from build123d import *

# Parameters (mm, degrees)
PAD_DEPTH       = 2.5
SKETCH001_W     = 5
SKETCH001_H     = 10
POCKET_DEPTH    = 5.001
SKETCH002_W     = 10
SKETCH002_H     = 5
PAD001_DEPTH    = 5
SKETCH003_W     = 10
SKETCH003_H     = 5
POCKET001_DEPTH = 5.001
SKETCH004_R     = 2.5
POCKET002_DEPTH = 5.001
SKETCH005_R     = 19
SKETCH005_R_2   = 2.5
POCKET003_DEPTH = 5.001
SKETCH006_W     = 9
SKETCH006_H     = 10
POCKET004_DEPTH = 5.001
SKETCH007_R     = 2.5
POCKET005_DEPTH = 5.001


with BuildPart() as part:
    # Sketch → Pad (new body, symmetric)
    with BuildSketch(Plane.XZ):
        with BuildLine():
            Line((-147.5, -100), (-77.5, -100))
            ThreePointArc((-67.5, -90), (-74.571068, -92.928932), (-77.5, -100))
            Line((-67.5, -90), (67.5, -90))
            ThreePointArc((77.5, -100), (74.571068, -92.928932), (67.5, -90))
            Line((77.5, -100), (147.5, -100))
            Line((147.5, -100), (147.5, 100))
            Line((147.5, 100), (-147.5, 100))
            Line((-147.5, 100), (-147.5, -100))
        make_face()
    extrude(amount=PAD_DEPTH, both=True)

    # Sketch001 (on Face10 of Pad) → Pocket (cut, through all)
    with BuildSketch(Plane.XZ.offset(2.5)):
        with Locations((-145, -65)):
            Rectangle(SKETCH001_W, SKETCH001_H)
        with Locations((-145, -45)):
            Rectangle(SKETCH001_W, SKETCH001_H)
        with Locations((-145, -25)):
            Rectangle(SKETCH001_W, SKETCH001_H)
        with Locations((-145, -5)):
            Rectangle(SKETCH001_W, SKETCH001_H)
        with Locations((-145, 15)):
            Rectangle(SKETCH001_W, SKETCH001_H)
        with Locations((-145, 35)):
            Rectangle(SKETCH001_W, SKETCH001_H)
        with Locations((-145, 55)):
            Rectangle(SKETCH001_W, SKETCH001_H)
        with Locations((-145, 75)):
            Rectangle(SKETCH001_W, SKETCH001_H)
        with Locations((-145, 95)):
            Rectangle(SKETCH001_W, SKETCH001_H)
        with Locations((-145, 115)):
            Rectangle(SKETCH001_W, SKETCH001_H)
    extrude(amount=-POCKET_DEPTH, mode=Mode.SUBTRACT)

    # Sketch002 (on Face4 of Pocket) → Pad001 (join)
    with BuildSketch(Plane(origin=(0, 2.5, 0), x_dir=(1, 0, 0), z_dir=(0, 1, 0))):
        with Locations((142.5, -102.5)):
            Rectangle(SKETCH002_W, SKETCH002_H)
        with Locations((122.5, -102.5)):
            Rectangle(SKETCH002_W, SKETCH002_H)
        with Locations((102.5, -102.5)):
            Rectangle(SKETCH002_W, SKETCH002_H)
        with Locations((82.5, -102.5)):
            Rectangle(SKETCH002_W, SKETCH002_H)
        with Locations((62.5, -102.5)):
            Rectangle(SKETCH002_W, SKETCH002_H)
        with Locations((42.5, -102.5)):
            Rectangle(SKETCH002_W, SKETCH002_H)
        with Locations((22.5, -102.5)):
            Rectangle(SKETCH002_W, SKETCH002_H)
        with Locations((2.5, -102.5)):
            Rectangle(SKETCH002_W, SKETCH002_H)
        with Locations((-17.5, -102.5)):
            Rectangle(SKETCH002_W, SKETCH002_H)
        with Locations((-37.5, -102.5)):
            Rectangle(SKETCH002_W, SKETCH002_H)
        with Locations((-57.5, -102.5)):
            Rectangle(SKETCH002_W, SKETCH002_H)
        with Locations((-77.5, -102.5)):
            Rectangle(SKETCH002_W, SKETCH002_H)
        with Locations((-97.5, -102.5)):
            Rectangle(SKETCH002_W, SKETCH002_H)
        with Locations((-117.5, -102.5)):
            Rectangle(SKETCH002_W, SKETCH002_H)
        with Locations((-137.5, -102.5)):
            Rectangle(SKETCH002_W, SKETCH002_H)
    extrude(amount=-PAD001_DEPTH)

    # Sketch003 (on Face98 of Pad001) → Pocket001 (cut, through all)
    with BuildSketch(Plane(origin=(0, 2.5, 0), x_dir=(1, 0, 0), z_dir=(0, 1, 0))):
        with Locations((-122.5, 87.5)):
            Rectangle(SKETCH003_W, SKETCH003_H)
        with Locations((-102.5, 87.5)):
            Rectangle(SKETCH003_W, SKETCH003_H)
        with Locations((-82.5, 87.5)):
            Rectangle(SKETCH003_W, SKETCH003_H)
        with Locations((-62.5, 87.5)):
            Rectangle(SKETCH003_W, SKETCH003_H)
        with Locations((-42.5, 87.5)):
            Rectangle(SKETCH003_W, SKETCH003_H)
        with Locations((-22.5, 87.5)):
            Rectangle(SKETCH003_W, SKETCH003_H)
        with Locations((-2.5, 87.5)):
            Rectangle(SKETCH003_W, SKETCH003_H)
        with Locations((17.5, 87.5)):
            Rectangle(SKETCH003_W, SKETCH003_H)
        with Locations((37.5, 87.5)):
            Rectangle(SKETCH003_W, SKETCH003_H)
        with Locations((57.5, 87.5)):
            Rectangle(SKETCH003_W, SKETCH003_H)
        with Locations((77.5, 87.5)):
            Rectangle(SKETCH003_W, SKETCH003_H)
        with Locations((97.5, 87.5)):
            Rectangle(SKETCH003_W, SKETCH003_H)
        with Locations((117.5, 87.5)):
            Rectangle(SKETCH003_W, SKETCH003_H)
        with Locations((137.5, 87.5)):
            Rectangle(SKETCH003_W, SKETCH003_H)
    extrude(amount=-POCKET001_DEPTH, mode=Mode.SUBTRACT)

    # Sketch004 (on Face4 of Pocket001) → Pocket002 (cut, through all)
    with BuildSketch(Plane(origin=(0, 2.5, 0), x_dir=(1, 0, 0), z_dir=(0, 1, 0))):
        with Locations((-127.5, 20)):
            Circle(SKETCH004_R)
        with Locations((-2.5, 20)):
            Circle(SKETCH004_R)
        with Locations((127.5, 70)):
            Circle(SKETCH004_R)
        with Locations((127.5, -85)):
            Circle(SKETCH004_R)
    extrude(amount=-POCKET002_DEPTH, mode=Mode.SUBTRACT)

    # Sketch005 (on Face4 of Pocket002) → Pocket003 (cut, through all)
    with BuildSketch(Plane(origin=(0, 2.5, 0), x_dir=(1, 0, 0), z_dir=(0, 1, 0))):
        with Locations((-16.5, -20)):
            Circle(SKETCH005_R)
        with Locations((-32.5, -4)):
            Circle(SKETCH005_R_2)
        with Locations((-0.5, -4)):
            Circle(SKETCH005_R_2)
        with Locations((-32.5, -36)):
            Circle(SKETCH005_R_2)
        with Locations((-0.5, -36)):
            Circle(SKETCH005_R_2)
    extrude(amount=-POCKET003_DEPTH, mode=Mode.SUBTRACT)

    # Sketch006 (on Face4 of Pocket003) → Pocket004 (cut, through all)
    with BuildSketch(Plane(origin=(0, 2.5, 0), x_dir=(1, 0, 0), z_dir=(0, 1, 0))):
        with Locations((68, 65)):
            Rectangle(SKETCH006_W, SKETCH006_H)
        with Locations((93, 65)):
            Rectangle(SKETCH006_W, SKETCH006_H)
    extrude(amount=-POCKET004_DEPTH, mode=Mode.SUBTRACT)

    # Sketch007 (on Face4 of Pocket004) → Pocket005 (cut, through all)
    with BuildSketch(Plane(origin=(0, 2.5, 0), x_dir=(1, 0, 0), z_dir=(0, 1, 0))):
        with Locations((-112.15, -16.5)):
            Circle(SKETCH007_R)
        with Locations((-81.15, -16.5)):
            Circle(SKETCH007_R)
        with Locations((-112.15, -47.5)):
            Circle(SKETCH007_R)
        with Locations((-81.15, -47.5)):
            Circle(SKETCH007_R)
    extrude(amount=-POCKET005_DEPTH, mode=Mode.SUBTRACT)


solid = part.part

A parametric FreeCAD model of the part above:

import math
import FreeCAD as App
import Part
import Sketcher
from FreeCAD import Vector

doc = App.newDocument("Part")
body = doc.addObject("PartDesign::Body", "Body")

# Sketch on XZ plane
sketch1 = doc.addObject("Sketcher::SketchObject", "Sketch")
body.addObject(sketch1)
sketch1.AttachmentSupport = (doc.XZ_Plane, [""])
sketch1.MapMode = "FlatFace"
sketch1.addGeometry([
    Part.LineSegment(Vector(-148, -100, 0), Vector(-78, -100, 0)),  # 0
    Part.ArcOfCircle(Part.Circle(Vector(-68, -100, 0), Vector(0, 0, 1), 10), math.radians(90), math.radians(180)),  # 1
    Part.LineSegment(Vector(-68, -90, 0), Vector(68, -90, 0)),  # 2
    Part.ArcOfCircle(Part.Circle(Vector(68, -100, 0), Vector(0, 0, 1), 10), math.radians(0), math.radians(90)),  # 3
    Part.LineSegment(Vector(78, -100, 0), Vector(148, -100, 0)),  # 4
    Part.LineSegment(Vector(148, -100, 0), Vector(148, 100, 0)),  # 5
    Part.LineSegment(Vector(148, 100, 0), Vector(-148, 100, 0)),  # 6
    Part.LineSegment(Vector(-148, 100, 0), Vector(-148, -100, 0)),  # 7
], False)
sketch1.addConstraint([
    Sketcher.Constraint("Coincident", 0, 2, 1, 2),
    Sketcher.Constraint("Tangent", 1, 1, 2, 1),
    Sketcher.Constraint("Tangent", 2, 2, 3, 2),
    Sketcher.Constraint("Coincident", 3, 1, 4, 1),
    Sketcher.Constraint("Coincident", 4, 2, 5, 1),
    Sketcher.Constraint("Coincident", 5, 2, 6, 1),
    Sketcher.Constraint("Coincident", 6, 2, 7, 1),
    Sketcher.Constraint("Coincident", 7, 2, 0, 1),
    Sketcher.Constraint("Horizontal", 0),
    Sketcher.Constraint("Horizontal", 2),
    Sketcher.Constraint("Horizontal", 4),
    Sketcher.Constraint("Vertical", 5),
    Sketcher.Constraint("Horizontal", 6),
    Sketcher.Constraint("Vertical", 7),
    Sketcher.Constraint("Equal", 1, 3),
    Sketcher.Constraint("Symmetric", 4, 2, 6, 2, -1, 1),
    Sketcher.Constraint("Symmetric", 0, 2, 3, 1, -2),
    Sketcher.Constraint("Horizontal", 3, 3, 0, 2),
    Sketcher.Constraint("Radius", 1, 9.999999),
    Sketcher.Constraint("DistanceX", 0, 1, 0, 2, 70.0),
    Sketcher.Constraint("DistanceX", 2, 1, 2, 2, 135.0),
    Sketcher.Constraint("DistanceY", 5, 1, 5, 2, 200.0),
])
pad1 = doc.addObject("PartDesign::Pad", "Pad")
body.addObject(pad1)
pad1.Profile = sketch1
pad1.Length = 5
pad1.Midplane = True

# Sketch on XZ plane
sketch2 = doc.addObject("Sketcher::SketchObject", "Sketch001")
body.addObject(sketch2)
sketch2.AttachmentSupport = (doc.XZ_Plane, [""])
sketch2.MapMode = "FlatFace"
sketch2.AttachmentOffset = App.Placement(Vector(0, 0, 2.5), App.Rotation())
sketch2.addGeometry([
    Part.LineSegment(Vector(-148, -60, 0), Vector(-148, -70, 0)),  # 0
    Part.LineSegment(Vector(-148, -70, 0), Vector(-142, -70, 0)),  # 1
    Part.LineSegment(Vector(-142, -70, 0), Vector(-142, -60, 0)),  # 2
    Part.LineSegment(Vector(-142, -60, 0), Vector(-148, -60, 0)),  # 3
    Part.LineSegment(Vector(-148, -40, 0), Vector(-148, -50, 0)),  # 4
    Part.LineSegment(Vector(-148, -50, 0), Vector(-142, -50, 0)),  # 5
    Part.LineSegment(Vector(-142, -50, 0), Vector(-142, -40, 0)),  # 6
    Part.LineSegment(Vector(-142, -40, 0), Vector(-148, -40, 0)),  # 7
    Part.LineSegment(Vector(-148, -20, 0), Vector(-148, -30, 0)),  # 8
    Part.LineSegment(Vector(-148, -30, 0), Vector(-142, -30, 0)),  # 9
    Part.LineSegment(Vector(-142, -30, 0), Vector(-142, -20, 0)),  # 10
    Part.LineSegment(Vector(-142, -20, 0), Vector(-148, -20, 0)),  # 11
    Part.LineSegment(Vector(-148, 0, 0), Vector(-148, -10, 0)),  # 12
    Part.LineSegment(Vector(-148, -10, 0), Vector(-142, -10, 0)),  # 13
    Part.LineSegment(Vector(-142, -10, 0), Vector(-142, 0, 0)),  # 14
    Part.LineSegment(Vector(-142, 0, 0), Vector(-148, 0, 0)),  # 15
    Part.LineSegment(Vector(-148, 20, 0), Vector(-148, 10, 0)),  # 16
    Part.LineSegment(Vector(-148, 10, 0), Vector(-142, 10, 0)),  # 17
    Part.LineSegment(Vector(-142, 10, 0), Vector(-142, 20, 0)),  # 18
    Part.LineSegment(Vector(-142, 20, 0), Vector(-148, 20, 0)),  # 19
    Part.LineSegment(Vector(-148, 40, 0), Vector(-148, 30, 0)),  # 20
    Part.LineSegment(Vector(-148, 30, 0), Vector(-142, 30, 0)),  # 21
    Part.LineSegment(Vector(-142, 30, 0), Vector(-142, 40, 0)),  # 22
    Part.LineSegment(Vector(-142, 40, 0), Vector(-148, 40, 0)),  # 23
    Part.LineSegment(Vector(-148, 60, 0), Vector(-148, 50, 0)),  # 24
    Part.LineSegment(Vector(-148, 50, 0), Vector(-142, 50, 0)),  # 25
    Part.LineSegment(Vector(-142, 50, 0), Vector(-142, 60, 0)),  # 26
    Part.LineSegment(Vector(-142, 60, 0), Vector(-148, 60, 0)),  # 27
    Part.LineSegment(Vector(-148, 80, 0), Vector(-148, 70, 0)),  # 28
    Part.LineSegment(Vector(-148, 70, 0), Vector(-142, 70, 0)),  # 29
    Part.LineSegment(Vector(-142, 70, 0), Vector(-142, 80, 0)),  # 30
    Part.LineSegment(Vector(-142, 80, 0), Vector(-148, 80, 0)),  # 31
    Part.LineSegment(Vector(-148, 100, 0), Vector(-148, 90, 0)),  # 32
    Part.LineSegment(Vector(-148, 90, 0), Vector(-142, 90, 0)),  # 33
    Part.LineSegment(Vector(-142, 90, 0), Vector(-142, 100, 0)),  # 34
    Part.LineSegment(Vector(-142, 100, 0), Vector(-148, 100, 0)),  # 35
    Part.LineSegment(Vector(-148, 120, 0), Vector(-148, 110, 0)),  # 36
    Part.LineSegment(Vector(-148, 110, 0), Vector(-142, 110, 0)),  # 37
    Part.LineSegment(Vector(-142, 110, 0), Vector(-142, 120, 0)),  # 38
    Part.LineSegment(Vector(-142, 120, 0), Vector(-148, 120, 0)),  # 39
], False)
sketch2.addConstraint([
    Sketcher.Constraint("Coincident", 0, 2, 1, 1),
    Sketcher.Constraint("Coincident", 1, 2, 2, 1),
    Sketcher.Constraint("Coincident", 2, 2, 3, 1),
    Sketcher.Constraint("Coincident", 3, 2, 0, 1),
    Sketcher.Constraint("Coincident", 4, 2, 5, 1),
    Sketcher.Constraint("Coincident", 5, 2, 6, 1),
    Sketcher.Constraint("Coincident", 6, 2, 7, 1),
    Sketcher.Constraint("Coincident", 7, 2, 4, 1),
    Sketcher.Constraint("Coincident", 8, 2, 9, 1),
    Sketcher.Constraint("Coincident", 9, 2, 10, 1),
    Sketcher.Constraint("Coincident", 10, 2, 11, 1),
    Sketcher.Constraint("Coincident", 11, 2, 8, 1),
    Sketcher.Constraint("Coincident", 12, 2, 13, 1),
    Sketcher.Constraint("Coincident", 13, 2, 14, 1),
    Sketcher.Constraint("Coincident", 14, 2, 15, 1),
    Sketcher.Constraint("Coincident", 15, 2, 12, 1),
    Sketcher.Constraint("Coincident", 16, 2, 17, 1),
    Sketcher.Constraint("Coincident", 17, 2, 18, 1),
    Sketcher.Constraint("Coincident", 18, 2, 19, 1),
    Sketcher.Constraint("Coincident", 19, 2, 16, 1),
    Sketcher.Constraint("Coincident", 20, 2, 21, 1),
    Sketcher.Constraint("Coincident", 21, 2, 22, 1),
    Sketcher.Constraint("Coincident", 22, 2, 23, 1),
    Sketcher.Constraint("Coincident", 23, 2, 20, 1),
    Sketcher.Constraint("Coincident", 24, 2, 25, 1),
    Sketcher.Constraint("Coincident", 25, 2, 26, 1),
    Sketcher.Constraint("Coincident", 26, 2, 27, 1),
    Sketcher.Constraint("Coincident", 27, 2, 24, 1),
    Sketcher.Constraint("Coincident", 28, 2, 29, 1),
    Sketcher.Constraint("Coincident", 29, 2, 30, 1),
    Sketcher.Constraint("Coincident", 30, 2, 31, 1),
    Sketcher.Constraint("Coincident", 31, 2, 28, 1),
    Sketcher.Constraint("Coincident", 32, 2, 33, 1),
    Sketcher.Constraint("Coincident", 33, 2, 34, 1),
    Sketcher.Constraint("Coincident", 34, 2, 35, 1),
    Sketcher.Constraint("Coincident", 35, 2, 32, 1),
    Sketcher.Constraint("Coincident", 36, 2, 37, 1),
    Sketcher.Constraint("Coincident", 37, 2, 38, 1),
    Sketcher.Constraint("Coincident", 38, 2, 39, 1),
    Sketcher.Constraint("Coincident", 39, 2, 36, 1),
    Sketcher.Constraint("Vertical", 0),
    Sketcher.Constraint("Horizontal", 1),
    Sketcher.Constraint("Vertical", 2),
    Sketcher.Constraint("Horizontal", 3),
    Sketcher.Constraint("Vertical", 4),
    Sketcher.Constraint("Horizontal", 5),
    Sketcher.Constraint("Vertical", 6),
    Sketcher.Constraint("Horizontal", 7),
    Sketcher.Constraint("Vertical", 8),
    Sketcher.Constraint("Horizontal", 9),
    Sketcher.Constraint("Vertical", 10),
    Sketcher.Constraint("Horizontal", 11),
    Sketcher.Constraint("Vertical", 12),
    Sketcher.Constraint("Horizontal", 13),
    Sketcher.Constraint("Vertical", 14),
    Sketcher.Constraint("Horizontal", 15),
    Sketcher.Constraint("Vertical", 16),
    Sketcher.Constraint("Horizontal", 17),
    Sketcher.Constraint("Vertical", 18),
    Sketcher.Constraint("Horizontal", 19),
    Sketcher.Constraint("Vertical", 20),
    Sketcher.Constraint("Horizontal", 21),
    Sketcher.Constraint("Vertical", 22),
    Sketcher.Constraint("Horizontal", 23),
    Sketcher.Constraint("Vertical", 24),
    Sketcher.Constraint("Horizontal", 25),
    Sketcher.Constraint("Vertical", 26),
    Sketcher.Constraint("Horizontal", 27),
    Sketcher.Constraint("Vertical", 28),
    Sketcher.Constraint("Horizontal", 29),
    Sketcher.Constraint("Vertical", 30),
    Sketcher.Constraint("Horizontal", 31),
    Sketcher.Constraint("Vertical", 32),
    Sketcher.Constraint("Horizontal", 33),
    Sketcher.Constraint("Vertical", 34),
    Sketcher.Constraint("Horizontal", 35),
    Sketcher.Constraint("Vertical", 36),
    Sketcher.Constraint("Horizontal", 37),
    Sketcher.Constraint("Vertical", 38),
    Sketcher.Constraint("Horizontal", 39),
    Sketcher.Constraint("Symmetric", 12, 2, 16, 2, -1),
    Sketcher.Constraint("Symmetric", 10, 2, 18, 2, -1),
    Sketcher.Constraint("Symmetric", 8, 2, 20, 2, -1),
    Sketcher.Constraint("Symmetric", 6, 2, 22, 2, -1),
    Sketcher.Constraint("Symmetric", 4, 2, 24, 2, -1),
    Sketcher.Constraint("Symmetric", 2, 2, 26, 2, -1),
    Sketcher.Constraint("Symmetric", 0, 2, 28, 2, -1),
    Sketcher.Constraint("PointOnObject", 14, 2, -1),
    Sketcher.Constraint("Vertical", 3, 2, 4, 2),
    Sketcher.Constraint("Vertical", 2, 2, 5, 2),
    Sketcher.Constraint("Vertical", 7, 2, 8, 2),
    Sketcher.Constraint("Vertical", 6, 2, 9, 2),
    Sketcher.Constraint("Vertical", 11, 2, 12, 2),
    Sketcher.Constraint("Vertical", 10, 2, 13, 2),
    Sketcher.Constraint("Vertical", 26, 2, 29, 2),
    Sketcher.Constraint("Vertical", 31, 2, 32, 2),
    Sketcher.Constraint("Vertical", 30, 2, 33, 2),
    Sketcher.Constraint("Vertical", 35, 2, 36, 2),
    Sketcher.Constraint("Vertical", 34, 2, 37, 2),
    Sketcher.Constraint("Equal", 2, 4),
    Sketcher.Constraint("Equal", 6, 8),
    Sketcher.Constraint("Equal", 10, 12),
    Sketcher.Constraint("Equal", 14, 16),
    Sketcher.Constraint("Equal", 18, 20),
    Sketcher.Constraint("Equal", 22, 24),
    Sketcher.Constraint("Equal", 26, 28),
    Sketcher.Constraint("Equal", 30, 32),
    Sketcher.Constraint("Equal", 34, 36),
    Sketcher.Constraint("DistanceX", 1, 1, 1, 2, 5.0),
    Sketcher.Constraint("DistanceY", 0, 2, 0, 1, 10.0),
    Sketcher.Constraint("DistanceY", -1, 1, 32, 2, 90.0),
    Sketcher.Constraint("DistanceY", -1, 1, 36, 2, 110.0),
    Sketcher.Constraint("DistanceX", 0, 2, -1, 1, 147.5),
])
pocket1 = doc.addObject("PartDesign::Pocket", "Pocket")
body.addObject(pocket1)
pocket1.Profile = sketch2
pocket1.Type = "ThroughAll"

# Sketch on XZ plane
sketch3 = doc.addObject("Sketcher::SketchObject", "Sketch002")
body.addObject(sketch3)
sketch3.AttachmentSupport = (doc.XZ_Plane, [""])
sketch3.MapMode = "FlatFace"
sketch3.AttachmentOffset = App.Placement(Vector(0, 0, -2.5), App.Rotation())
sketch3.addGeometry([
    Part.LineSegment(Vector(138, 100, 0), Vector(138, 105, 0)),  # 0
    Part.LineSegment(Vector(138, 105, 0), Vector(148, 105, 0)),  # 1
    Part.LineSegment(Vector(148, 105, 0), Vector(148, 100, 0)),  # 2
    Part.LineSegment(Vector(148, 100, 0), Vector(138, 100, 0)),  # 3
    Part.LineSegment(Vector(118, 100, 0), Vector(118, 105, 0)),  # 4
    Part.LineSegment(Vector(118, 105, 0), Vector(128, 105, 0)),  # 5
    Part.LineSegment(Vector(128, 105, 0), Vector(128, 100, 0)),  # 6
    Part.LineSegment(Vector(128, 100, 0), Vector(118, 100, 0)),  # 7
    Part.LineSegment(Vector(98, 100, 0), Vector(98, 105, 0)),  # 8
    Part.LineSegment(Vector(98, 105, 0), Vector(108, 105, 0)),  # 9
    Part.LineSegment(Vector(108, 105, 0), Vector(108, 100, 0)),  # 10
    Part.LineSegment(Vector(108, 100, 0), Vector(98, 100, 0)),  # 11
    Part.LineSegment(Vector(78, 100, 0), Vector(78, 105, 0)),  # 12
    Part.LineSegment(Vector(78, 105, 0), Vector(88, 105, 0)),  # 13
    Part.LineSegment(Vector(88, 105, 0), Vector(88, 100, 0)),  # 14
    Part.LineSegment(Vector(88, 100, 0), Vector(78, 100, 0)),  # 15
    Part.LineSegment(Vector(58, 100, 0), Vector(58, 105, 0)),  # 16
    Part.LineSegment(Vector(58, 105, 0), Vector(68, 105, 0)),  # 17
    Part.LineSegment(Vector(68, 105, 0), Vector(68, 100, 0)),  # 18
    Part.LineSegment(Vector(68, 100, 0), Vector(58, 100, 0)),  # 19
    Part.LineSegment(Vector(38, 100, 0), Vector(38, 105, 0)),  # 20
    Part.LineSegment(Vector(38, 105, 0), Vector(48, 105, 0)),  # 21
    Part.LineSegment(Vector(48, 105, 0), Vector(48, 100, 0)),  # 22
    Part.LineSegment(Vector(48, 100, 0), Vector(38, 100, 0)),  # 23
    Part.LineSegment(Vector(18, 100, 0), Vector(18, 105, 0)),  # 24
    Part.LineSegment(Vector(18, 105, 0), Vector(28, 105, 0)),  # 25
    Part.LineSegment(Vector(28, 105, 0), Vector(28, 100, 0)),  # 26
    Part.LineSegment(Vector(28, 100, 0), Vector(18, 100, 0)),  # 27
    Part.LineSegment(Vector(-2, 100, 0), Vector(-2, 105, 0)),  # 28
    Part.LineSegment(Vector(-2, 105, 0), Vector(8, 105, 0)),  # 29
    Part.LineSegment(Vector(8, 105, 0), Vector(8, 100, 0)),  # 30
    Part.LineSegment(Vector(8, 100, 0), Vector(-2, 100, 0)),  # 31
    Part.LineSegment(Vector(-22, 100, 0), Vector(-22, 105, 0)),  # 32
    Part.LineSegment(Vector(-22, 105, 0), Vector(-12, 105, 0)),  # 33
    Part.LineSegment(Vector(-12, 105, 0), Vector(-12, 100, 0)),  # 34
    Part.LineSegment(Vector(-12, 100, 0), Vector(-22, 100, 0)),  # 35
    Part.LineSegment(Vector(-42, 100, 0), Vector(-42, 105, 0)),  # 36
    Part.LineSegment(Vector(-42, 105, 0), Vector(-32, 105, 0)),  # 37
    Part.LineSegment(Vector(-32, 105, 0), Vector(-32, 100, 0)),  # 38
    Part.LineSegment(Vector(-32, 100, 0), Vector(-42, 100, 0)),  # 39
    Part.LineSegment(Vector(-62, 100, 0), Vector(-62, 105, 0)),  # 40
    Part.LineSegment(Vector(-62, 105, 0), Vector(-52, 105, 0)),  # 41
    Part.LineSegment(Vector(-52, 105, 0), Vector(-52, 100, 0)),  # 42
    Part.LineSegment(Vector(-52, 100, 0), Vector(-62, 100, 0)),  # 43
    Part.LineSegment(Vector(-82, 100, 0), Vector(-82, 105, 0)),  # 44
    Part.LineSegment(Vector(-82, 105, 0), Vector(-72, 105, 0)),  # 45
    Part.LineSegment(Vector(-72, 105, 0), Vector(-72, 100, 0)),  # 46
    Part.LineSegment(Vector(-72, 100, 0), Vector(-82, 100, 0)),  # 47
    Part.LineSegment(Vector(-102, 100, 0), Vector(-102, 105, 0)),  # 48
    Part.LineSegment(Vector(-102, 105, 0), Vector(-92, 105, 0)),  # 49
    Part.LineSegment(Vector(-92, 105, 0), Vector(-92, 100, 0)),  # 50
    Part.LineSegment(Vector(-92, 100, 0), Vector(-102, 100, 0)),  # 51
    Part.LineSegment(Vector(-122, 100, 0), Vector(-122, 105, 0)),  # 52
    Part.LineSegment(Vector(-122, 105, 0), Vector(-112, 105, 0)),  # 53
    Part.LineSegment(Vector(-112, 105, 0), Vector(-112, 100, 0)),  # 54
    Part.LineSegment(Vector(-112, 100, 0), Vector(-122, 100, 0)),  # 55
    Part.LineSegment(Vector(-142, 100, 0), Vector(-142, 105, 0)),  # 56
    Part.LineSegment(Vector(-142, 105, 0), Vector(-132, 105, 0)),  # 57
    Part.LineSegment(Vector(-132, 105, 0), Vector(-132, 100, 0)),  # 58
    Part.LineSegment(Vector(-132, 100, 0), Vector(-142, 100, 0)),  # 59
], False)
sketch3.addConstraint([
    Sketcher.Constraint("Coincident", 0, 2, 1, 1),
    Sketcher.Constraint("Coincident", 1, 2, 2, 1),
    Sketcher.Constraint("Coincident", 2, 2, 3, 1),
    Sketcher.Constraint("Coincident", 3, 2, 0, 1),
    Sketcher.Constraint("Coincident", 4, 2, 5, 1),
    Sketcher.Constraint("Coincident", 5, 2, 6, 1),
    Sketcher.Constraint("Coincident", 6, 2, 7, 1),
    Sketcher.Constraint("Coincident", 7, 2, 4, 1),
    Sketcher.Constraint("Coincident", 8, 2, 9, 1),
    Sketcher.Constraint("Coincident", 9, 2, 10, 1),
    Sketcher.Constraint("Coincident", 10, 2, 11, 1),
    Sketcher.Constraint("Coincident", 11, 2, 8, 1),
    Sketcher.Constraint("Coincident", 12, 2, 13, 1),
    Sketcher.Constraint("Coincident", 13, 2, 14, 1),
    Sketcher.Constraint("Coincident", 14, 2, 15, 1),
    Sketcher.Constraint("Coincident", 15, 2, 12, 1),
    Sketcher.Constraint("Coincident", 16, 2, 17, 1),
    Sketcher.Constraint("Coincident", 17, 2, 18, 1),
    Sketcher.Constraint("Coincident", 18, 2, 19, 1),
    Sketcher.Constraint("Coincident", 19, 2, 16, 1),
    Sketcher.Constraint("Coincident", 20, 2, 21, 1),
    Sketcher.Constraint("Coincident", 21, 2, 22, 1),
    Sketcher.Constraint("Coincident", 22, 2, 23, 1),
    Sketcher.Constraint("Coincident", 23, 2, 20, 1),
    Sketcher.Constraint("Coincident", 24, 2, 25, 1),
    Sketcher.Constraint("Coincident", 25, 2, 26, 1),
    Sketcher.Constraint("Coincident", 26, 2, 27, 1),
    Sketcher.Constraint("Coincident", 27, 2, 24, 1),
    Sketcher.Constraint("Coincident", 28, 2, 29, 1),
    Sketcher.Constraint("Coincident", 29, 2, 30, 1),
    Sketcher.Constraint("Coincident", 30, 2, 31, 1),
    Sketcher.Constraint("Coincident", 31, 2, 28, 1),
    Sketcher.Constraint("Coincident", 32, 2, 33, 1),
    Sketcher.Constraint("Coincident", 33, 2, 34, 1),
    Sketcher.Constraint("Coincident", 34, 2, 35, 1),
    Sketcher.Constraint("Coincident", 35, 2, 32, 1),
    Sketcher.Constraint("Coincident", 36, 2, 37, 1),
    Sketcher.Constraint("Coincident", 37, 2, 38, 1),
    Sketcher.Constraint("Coincident", 38, 2, 39, 1),
    Sketcher.Constraint("Coincident", 39, 2, 36, 1),
    Sketcher.Constraint("Coincident", 40, 2, 41, 1),
    Sketcher.Constraint("Coincident", 41, 2, 42, 1),
    Sketcher.Constraint("Coincident", 42, 2, 43, 1),
    Sketcher.Constraint("Coincident", 43, 2, 40, 1),
    Sketcher.Constraint("Coincident", 44, 2, 45, 1),
    Sketcher.Constraint("Coincident", 45, 2, 46, 1),
    Sketcher.Constraint("Coincident", 46, 2, 47, 1),
    Sketcher.Constraint("Coincident", 47, 2, 44, 1),
    Sketcher.Constraint("Coincident", 48, 2, 49, 1),
    Sketcher.Constraint("Coincident", 49, 2, 50, 1),
    Sketcher.Constraint("Coincident", 50, 2, 51, 1),
    Sketcher.Constraint("Coincident", 51, 2, 48, 1),
    Sketcher.Constraint("Coincident", 52, 2, 53, 1),
    Sketcher.Constraint("Coincident", 53, 2, 54, 1),
    Sketcher.Constraint("Coincident", 54, 2, 55, 1),
    Sketcher.Constraint("Coincident", 55, 2, 52, 1),
    Sketcher.Constraint("Coincident", 56, 2, 57, 1),
    Sketcher.Constraint("Coincident", 57, 2, 58, 1),
    Sketcher.Constraint("Coincident", 58, 2, 59, 1),
    Sketcher.Constraint("Coincident", 59, 2, 56, 1),
    Sketcher.Constraint("Vertical", 0),
    Sketcher.Constraint("Horizontal", 1),
    Sketcher.Constraint("Vertical", 2),
    Sketcher.Constraint("Horizontal", 3),
    Sketcher.Constraint("Vertical", 4),
    Sketcher.Constraint("Horizontal", 5),
    Sketcher.Constraint("Vertical", 6),
    Sketcher.Constraint("Horizontal", 7),
    Sketcher.Constraint("Vertical", 8),
    Sketcher.Constraint("Horizontal", 9),
    Sketcher.Constraint("Vertical", 10),
    Sketcher.Constraint("Horizontal", 11),
    Sketcher.Constraint("Vertical", 12),
    Sketcher.Constraint("Horizontal", 13),
    Sketcher.Constraint("Vertical", 14),
    Sketcher.Constraint("Horizontal", 15),
    Sketcher.Constraint("Vertical", 16),
    Sketcher.Constraint("Horizontal", 17),
    Sketcher.Constraint("Vertical", 18),
    Sketcher.Constraint("Horizontal", 19),
    Sketcher.Constraint("Vertical", 20),
    Sketcher.Constraint("Horizontal", 21),
    Sketcher.Constraint("Vertical", 22),
    Sketcher.Constraint("Horizontal", 23),
    Sketcher.Constraint("Vertical", 24),
    Sketcher.Constraint("Horizontal", 25),
    Sketcher.Constraint("Vertical", 26),
    Sketcher.Constraint("Horizontal", 27),
    Sketcher.Constraint("Vertical", 28),
    Sketcher.Constraint("Horizontal", 29),
    Sketcher.Constraint("Vertical", 30),
    Sketcher.Constraint("Horizontal", 31),
    Sketcher.Constraint("Vertical", 32),
    Sketcher.Constraint("Horizontal", 33),
    Sketcher.Constraint("Vertical", 34),
    Sketcher.Constraint("Horizontal", 35),
    Sketcher.Constraint("Vertical", 36),
    Sketcher.Constraint("Horizontal", 37),
    Sketcher.Constraint("Vertical", 38),
    Sketcher.Constraint("Horizontal", 39),
    Sketcher.Constraint("Vertical", 40),
    Sketcher.Constraint("Horizontal", 41),
    Sketcher.Constraint("Vertical", 42),
    Sketcher.Constraint("Horizontal", 43),
    Sketcher.Constraint("Vertical", 44),
    Sketcher.Constraint("Horizontal", 45),
    Sketcher.Constraint("Vertical", 46),
    Sketcher.Constraint("Horizontal", 47),
    Sketcher.Constraint("Vertical", 48),
    Sketcher.Constraint("Horizontal", 49),
    Sketcher.Constraint("Vertical", 50),
    Sketcher.Constraint("Horizontal", 51),
    Sketcher.Constraint("Vertical", 52),
    Sketcher.Constraint("Horizontal", 53),
    Sketcher.Constraint("Vertical", 54),
    Sketcher.Constraint("Horizontal", 55),
    Sketcher.Constraint("Vertical", 56),
    Sketcher.Constraint("Horizontal", 57),
    Sketcher.Constraint("Vertical", 58),
    Sketcher.Constraint("Horizontal", 59),
    Sketcher.Constraint("Horizontal", 1, 2, 4, 2),
    Sketcher.Constraint("Horizontal", 3, 2, 6, 2),
    Sketcher.Constraint("Horizontal", 5, 2, 8, 2),
    Sketcher.Constraint("Horizontal", 7, 2, 10, 2),
    Sketcher.Constraint("Horizontal", 9, 2, 12, 2),
    Sketcher.Constraint("Horizontal", 11, 2, 14, 2),
    Sketcher.Constraint("Horizontal", 13, 2, 16, 2),
    Sketcher.Constraint("Horizontal", 15, 2, 18, 2),
    Sketcher.Constraint("Horizontal", 17, 2, 20, 2),
    Sketcher.Constraint("Horizontal", 19, 2, 22, 2),
    Sketcher.Constraint("Horizontal", 21, 2, 24, 2),
    Sketcher.Constraint("Horizontal", 23, 2, 26, 2),
    Sketcher.Constraint("Horizontal", 25, 2, 28, 2),
    Sketcher.Constraint("Horizontal", 27, 2, 30, 2),
    Sketcher.Constraint("Horizontal", 29, 2, 32, 2),
    Sketcher.Constraint("Horizontal", 31, 2, 34, 2),
    Sketcher.Constraint("Horizontal", 33, 2, 36, 2),
    Sketcher.Constraint("Horizontal", 35, 2, 38, 2),
    Sketcher.Constraint("Horizontal", 37, 2, 40, 2),
    Sketcher.Constraint("Horizontal", 39, 2, 42, 2),
    Sketcher.Constraint("Horizontal", 41, 2, 44, 2),
    Sketcher.Constraint("Horizontal", 43, 2, 46, 2),
    Sketcher.Constraint("Horizontal", 45, 2, 48, 2),
    Sketcher.Constraint("Horizontal", 47, 2, 50, 2),
    Sketcher.Constraint("Horizontal", 49, 2, 52, 2),
    Sketcher.Constraint("Horizontal", 51, 2, 54, 2),
    Sketcher.Constraint("Horizontal", 53, 2, 56, 2),
    Sketcher.Constraint("Horizontal", 55, 2, 58, 2),
    Sketcher.Constraint("Equal", 3, 5),
    Sketcher.Constraint("Equal", 7, 9),
    Sketcher.Constraint("Equal", 11, 13),
    Sketcher.Constraint("Equal", 15, 17),
    Sketcher.Constraint("Equal", 19, 21),
    Sketcher.Constraint("Equal", 23, 25),
    Sketcher.Constraint("Equal", 27, 29),
    Sketcher.Constraint("Equal", 31, 33),
    Sketcher.Constraint("Equal", 35, 37),
    Sketcher.Constraint("Equal", 39, 41),
    Sketcher.Constraint("Equal", 43, 45),
    Sketcher.Constraint("Equal", 47, 49),
    Sketcher.Constraint("Equal", 51, 53),
    Sketcher.Constraint("Equal", 55, 57),
    Sketcher.Constraint("DistanceX", 1, 1, 1, 2, 10.0),
    Sketcher.Constraint("DistanceY", 0, 1, 0, 2, 5.0),
    Sketcher.Constraint("DistanceY", -1, 1, 0, 2, 105.0),
    Sketcher.Constraint("DistanceX", 4, 2, 0, 2, 20.0),
    Sketcher.Constraint("DistanceX", 8, 2, 4, 2, 20.0),
    Sketcher.Constraint("DistanceX", 12, 2, 8, 2, 20.0),
    Sketcher.Constraint("DistanceX", 16, 2, 12, 2, 20.0),
    Sketcher.Constraint("DistanceX", 20, 2, 16, 2, 20.0),
    Sketcher.Constraint("DistanceX", 24, 2, 20, 2, 20.0),
    Sketcher.Constraint("DistanceX", 28, 2, 24, 2, 20.0),
    Sketcher.Constraint("DistanceX", 32, 2, 28, 2, 20.0),
    Sketcher.Constraint("DistanceX", 36, 2, 32, 2, 20.0),
    Sketcher.Constraint("DistanceX", 40, 2, 36, 2, 20.0),
    Sketcher.Constraint("DistanceX", 44, 2, 40, 2, 20.0),
    Sketcher.Constraint("DistanceX", 48, 2, 44, 2, 20.0),
    Sketcher.Constraint("DistanceX", 52, 2, 48, 2, 20.0),
    Sketcher.Constraint("DistanceX", 56, 2, 52, 2, 20.0),
    Sketcher.Constraint("DistanceX", -1, 1, 0, 2, 137.5),
])
pad2 = doc.addObject("PartDesign::Pad", "Pad001")
body.addObject(pad2)
pad2.Profile = sketch3
pad2.Length = 5

# Sketch on XZ plane
sketch4 = doc.addObject("Sketcher::SketchObject", "Sketch003")
body.addObject(sketch4)
sketch4.AttachmentSupport = (doc.XZ_Plane, [""])
sketch4.MapMode = "FlatFace"
sketch4.AttachmentOffset = App.Placement(Vector(0, 0, -2.5), App.Rotation())
sketch4.addGeometry([
    Part.LineSegment(Vector(-128, -90, 0), Vector(-128, -85, 0)),  # 0
    Part.LineSegment(Vector(-128, -85, 0), Vector(-118, -85, 0)),  # 1
    Part.LineSegment(Vector(-118, -85, 0), Vector(-118, -90, 0)),  # 2
    Part.LineSegment(Vector(-118, -90, 0), Vector(-128, -90, 0)),  # 3
    Part.LineSegment(Vector(-108, -90, 0), Vector(-108, -85, 0)),  # 4
    Part.LineSegment(Vector(-108, -85, 0), Vector(-98, -85, 0)),  # 5
    Part.LineSegment(Vector(-98, -85, 0), Vector(-98, -90, 0)),  # 6
    Part.LineSegment(Vector(-98, -90, 0), Vector(-108, -90, 0)),  # 7
    Part.LineSegment(Vector(-88, -90, 0), Vector(-88, -85, 0)),  # 8
    Part.LineSegment(Vector(-88, -85, 0), Vector(-78, -85, 0)),  # 9
    Part.LineSegment(Vector(-78, -85, 0), Vector(-78, -90, 0)),  # 10
    Part.LineSegment(Vector(-78, -90, 0), Vector(-88, -90, 0)),  # 11
    Part.LineSegment(Vector(-68, -90, 0), Vector(-68, -85, 0)),  # 12
    Part.LineSegment(Vector(-68, -85, 0), Vector(-58, -85, 0)),  # 13
    Part.LineSegment(Vector(-58, -85, 0), Vector(-58, -90, 0)),  # 14
    Part.LineSegment(Vector(-58, -90, 0), Vector(-68, -90, 0)),  # 15
    Part.LineSegment(Vector(-48, -90, 0), Vector(-48, -85, 0)),  # 16
    Part.LineSegment(Vector(-48, -85, 0), Vector(-38, -85, 0)),  # 17
    Part.LineSegment(Vector(-38, -85, 0), Vector(-38, -90, 0)),  # 18
    Part.LineSegment(Vector(-38, -90, 0), Vector(-48, -90, 0)),  # 19
    Part.LineSegment(Vector(-28, -90, 0), Vector(-28, -85, 0)),  # 20
    Part.LineSegment(Vector(-28, -85, 0), Vector(-18, -85, 0)),  # 21
    Part.LineSegment(Vector(-18, -85, 0), Vector(-18, -90, 0)),  # 22
    Part.LineSegment(Vector(-18, -90, 0), Vector(-28, -90, 0)),  # 23
    Part.LineSegment(Vector(-8, -90, 0), Vector(-8, -85, 0)),  # 24
    Part.LineSegment(Vector(-8, -85, 0), Vector(2, -85, 0)),  # 25
    Part.LineSegment(Vector(2, -85, 0), Vector(2, -90, 0)),  # 26
    Part.LineSegment(Vector(2, -90, 0), Vector(-8, -90, 0)),  # 27
    Part.LineSegment(Vector(12, -90, 0), Vector(12, -85, 0)),  # 28
    Part.LineSegment(Vector(12, -85, 0), Vector(22, -85, 0)),  # 29
    Part.LineSegment(Vector(22, -85, 0), Vector(22, -90, 0)),  # 30
    Part.LineSegment(Vector(22, -90, 0), Vector(12, -90, 0)),  # 31
    Part.LineSegment(Vector(32, -90, 0), Vector(32, -85, 0)),  # 32
    Part.LineSegment(Vector(32, -85, 0), Vector(42, -85, 0)),  # 33
    Part.LineSegment(Vector(42, -85, 0), Vector(42, -90, 0)),  # 34
    Part.LineSegment(Vector(42, -90, 0), Vector(32, -90, 0)),  # 35
    Part.LineSegment(Vector(52, -90, 0), Vector(52, -85, 0)),  # 36
    Part.LineSegment(Vector(52, -85, 0), Vector(62, -85, 0)),  # 37
    Part.LineSegment(Vector(62, -85, 0), Vector(62, -90, 0)),  # 38
    Part.LineSegment(Vector(62, -90, 0), Vector(52, -90, 0)),  # 39
    Part.LineSegment(Vector(72, -90, 0), Vector(72, -85, 0)),  # 40
    Part.LineSegment(Vector(72, -85, 0), Vector(82, -85, 0)),  # 41
    Part.LineSegment(Vector(82, -85, 0), Vector(82, -90, 0)),  # 42
    Part.LineSegment(Vector(82, -90, 0), Vector(72, -90, 0)),  # 43
    Part.LineSegment(Vector(92, -90, 0), Vector(92, -85, 0)),  # 44
    Part.LineSegment(Vector(92, -85, 0), Vector(102, -85, 0)),  # 45
    Part.LineSegment(Vector(102, -85, 0), Vector(102, -90, 0)),  # 46
    Part.LineSegment(Vector(102, -90, 0), Vector(92, -90, 0)),  # 47
    Part.LineSegment(Vector(112, -90, 0), Vector(112, -85, 0)),  # 48
    Part.LineSegment(Vector(112, -85, 0), Vector(122, -85, 0)),  # 49
    Part.LineSegment(Vector(122, -85, 0), Vector(122, -90, 0)),  # 50
    Part.LineSegment(Vector(122, -90, 0), Vector(112, -90, 0)),  # 51
    Part.LineSegment(Vector(132, -90, 0), Vector(132, -85, 0)),  # 52
    Part.LineSegment(Vector(132, -85, 0), Vector(142, -85, 0)),  # 53
    Part.LineSegment(Vector(142, -85, 0), Vector(142, -90, 0)),  # 54
    Part.LineSegment(Vector(142, -90, 0), Vector(132, -90, 0)),  # 55
], False)
sketch4.addConstraint([
    Sketcher.Constraint("Coincident", 0, 2, 1, 1),
    Sketcher.Constraint("Coincident", 1, 2, 2, 1),
    Sketcher.Constraint("Coincident", 2, 2, 3, 1),
    Sketcher.Constraint("Coincident", 3, 2, 0, 1),
    Sketcher.Constraint("Coincident", 4, 2, 5, 1),
    Sketcher.Constraint("Coincident", 5, 2, 6, 1),
    Sketcher.Constraint("Coincident", 6, 2, 7, 1),
    Sketcher.Constraint("Coincident", 7, 2, 4, 1),
    Sketcher.Constraint("Coincident", 8, 2, 9, 1),
    Sketcher.Constraint("Coincident", 9, 2, 10, 1),
    Sketcher.Constraint("Coincident", 10, 2, 11, 1),
    Sketcher.Constraint("Coincident", 11, 2, 8, 1),
    Sketcher.Constraint("Coincident", 12, 2, 13, 1),
    Sketcher.Constraint("Coincident", 13, 2, 14, 1),
    Sketcher.Constraint("Coincident", 14, 2, 15, 1),
    Sketcher.Constraint("Coincident", 15, 2, 12, 1),
    Sketcher.Constraint("Coincident", 16, 2, 17, 1),
    Sketcher.Constraint("Coincident", 17, 2, 18, 1),
    Sketcher.Constraint("Coincident", 18, 2, 19, 1),
    Sketcher.Constraint("Coincident", 19, 2, 16, 1),
    Sketcher.Constraint("Coincident", 20, 2, 21, 1),
    Sketcher.Constraint("Coincident", 21, 2, 22, 1),
    Sketcher.Constraint("Coincident", 22, 2, 23, 1),
    Sketcher.Constraint("Coincident", 23, 2, 20, 1),
    Sketcher.Constraint("Coincident", 24, 2, 25, 1),
    Sketcher.Constraint("Coincident", 25, 2, 26, 1),
    Sketcher.Constraint("Coincident", 26, 2, 27, 1),
    Sketcher.Constraint("Coincident", 27, 2, 24, 1),
    Sketcher.Constraint("Coincident", 28, 2, 29, 1),
    Sketcher.Constraint("Coincident", 29, 2, 30, 1),
    Sketcher.Constraint("Coincident", 30, 2, 31, 1),
    Sketcher.Constraint("Coincident", 31, 2, 28, 1),
    Sketcher.Constraint("Coincident", 32, 2, 33, 1),
    Sketcher.Constraint("Coincident", 33, 2, 34, 1),
    Sketcher.Constraint("Coincident", 34, 2, 35, 1),
    Sketcher.Constraint("Coincident", 35, 2, 32, 1),
    Sketcher.Constraint("Coincident", 36, 2, 37, 1),
    Sketcher.Constraint("Coincident", 37, 2, 38, 1),
    Sketcher.Constraint("Coincident", 38, 2, 39, 1),
    Sketcher.Constraint("Coincident", 39, 2, 36, 1),
    Sketcher.Constraint("Coincident", 40, 2, 41, 1),
    Sketcher.Constraint("Coincident", 41, 2, 42, 1),
    Sketcher.Constraint("Coincident", 42, 2, 43, 1),
    Sketcher.Constraint("Coincident", 43, 2, 40, 1),
    Sketcher.Constraint("Coincident", 44, 2, 45, 1),
    Sketcher.Constraint("Coincident", 45, 2, 46, 1),
    Sketcher.Constraint("Coincident", 46, 2, 47, 1),
    Sketcher.Constraint("Coincident", 47, 2, 44, 1),
    Sketcher.Constraint("Coincident", 48, 2, 49, 1),
    Sketcher.Constraint("Coincident", 49, 2, 50, 1),
    Sketcher.Constraint("Coincident", 50, 2, 51, 1),
    Sketcher.Constraint("Coincident", 51, 2, 48, 1),
    Sketcher.Constraint("Coincident", 52, 2, 53, 1),
    Sketcher.Constraint("Coincident", 53, 2, 54, 1),
    Sketcher.Constraint("Coincident", 54, 2, 55, 1),
    Sketcher.Constraint("Coincident", 55, 2, 52, 1),
    Sketcher.Constraint("Vertical", 0),
    Sketcher.Constraint("Horizontal", 1),
    Sketcher.Constraint("Vertical", 2),
    Sketcher.Constraint("Horizontal", 3),
    Sketcher.Constraint("Vertical", 4),
    Sketcher.Constraint("Horizontal", 5),
    Sketcher.Constraint("Vertical", 6),
    Sketcher.Constraint("Horizontal", 7),
    Sketcher.Constraint("Vertical", 8),
    Sketcher.Constraint("Horizontal", 9),
    Sketcher.Constraint("Vertical", 10),
    Sketcher.Constraint("Horizontal", 11),
    Sketcher.Constraint("Vertical", 12),
    Sketcher.Constraint("Horizontal", 13),
    Sketcher.Constraint("Vertical", 14),
    Sketcher.Constraint("Horizontal", 15),
    Sketcher.Constraint("Vertical", 16),
    Sketcher.Constraint("Horizontal", 17),
    Sketcher.Constraint("Vertical", 18),
    Sketcher.Constraint("Horizontal", 19),
    Sketcher.Constraint("Vertical", 20),
    Sketcher.Constraint("Horizontal", 21),
    Sketcher.Constraint("Vertical", 22),
    Sketcher.Constraint("Horizontal", 23),
    Sketcher.Constraint("Vertical", 24),
    Sketcher.Constraint("Horizontal", 25),
    Sketcher.Constraint("Vertical", 26),
    Sketcher.Constraint("Horizontal", 27),
    Sketcher.Constraint("Vertical", 28),
    Sketcher.Constraint("Horizontal", 29),
    Sketcher.Constraint("Vertical", 30),
    Sketcher.Constraint("Horizontal", 31),
    Sketcher.Constraint("Vertical", 32),
    Sketcher.Constraint("Horizontal", 33),
    Sketcher.Constraint("Vertical", 34),
    Sketcher.Constraint("Horizontal", 35),
    Sketcher.Constraint("Vertical", 36),
    Sketcher.Constraint("Horizontal", 37),
    Sketcher.Constraint("Vertical", 38),
    Sketcher.Constraint("Horizontal", 39),
    Sketcher.Constraint("Vertical", 40),
    Sketcher.Constraint("Horizontal", 41),
    Sketcher.Constraint("Vertical", 42),
    Sketcher.Constraint("Horizontal", 43),
    Sketcher.Constraint("Vertical", 44),
    Sketcher.Constraint("Horizontal", 45),
    Sketcher.Constraint("Vertical", 46),
    Sketcher.Constraint("Horizontal", 47),
    Sketcher.Constraint("Vertical", 48),
    Sketcher.Constraint("Horizontal", 49),
    Sketcher.Constraint("Vertical", 50),
    Sketcher.Constraint("Horizontal", 51),
    Sketcher.Constraint("Vertical", 52),
    Sketcher.Constraint("Horizontal", 53),
    Sketcher.Constraint("Vertical", 54),
    Sketcher.Constraint("Horizontal", 55),
    Sketcher.Constraint("Horizontal", 1, 2, 4, 2),
    Sketcher.Constraint("Horizontal", 3, 2, 6, 2),
    Sketcher.Constraint("Horizontal", 5, 2, 8, 2),
    Sketcher.Constraint("Horizontal", 7, 2, 10, 2),
    Sketcher.Constraint("Horizontal", 9, 2, 12, 2),
    Sketcher.Constraint("Horizontal", 11, 2, 14, 2),
    Sketcher.Constraint("Horizontal", 13, 2, 16, 2),
    Sketcher.Constraint("Horizontal", 15, 2, 18, 2),
    Sketcher.Constraint("Horizontal", 17, 2, 20, 2),
    Sketcher.Constraint("Horizontal", 19, 2, 22, 2),
    Sketcher.Constraint("Horizontal", 21, 2, 24, 2),
    Sketcher.Constraint("Horizontal", 23, 2, 26, 2),
    Sketcher.Constraint("Horizontal", 25, 2, 28, 2),
    Sketcher.Constraint("Horizontal", 27, 2, 30, 2),
    Sketcher.Constraint("Horizontal", 29, 2, 32, 2),
    Sketcher.Constraint("Horizontal", 31, 2, 34, 2),
    Sketcher.Constraint("Horizontal", 33, 2, 36, 2),
    Sketcher.Constraint("Horizontal", 35, 2, 38, 2),
    Sketcher.Constraint("Horizontal", 37, 2, 40, 2),
    Sketcher.Constraint("Horizontal", 39, 2, 42, 2),
    Sketcher.Constraint("Horizontal", 41, 2, 44, 2),
    Sketcher.Constraint("Horizontal", 43, 2, 46, 2),
    Sketcher.Constraint("Horizontal", 45, 2, 48, 2),
    Sketcher.Constraint("Horizontal", 47, 2, 50, 2),
    Sketcher.Constraint("Horizontal", 49, 2, 52, 2),
    Sketcher.Constraint("Horizontal", 51, 2, 54, 2),
    Sketcher.Constraint("Equal", 3, 5),
    Sketcher.Constraint("Equal", 7, 9),
    Sketcher.Constraint("Equal", 11, 13),
    Sketcher.Constraint("Equal", 15, 17),
    Sketcher.Constraint("Equal", 19, 21),
    Sketcher.Constraint("Equal", 23, 25),
    Sketcher.Constraint("Equal", 27, 29),
    Sketcher.Constraint("Equal", 31, 33),
    Sketcher.Constraint("Equal", 35, 37),
    Sketcher.Constraint("Equal", 39, 41),
    Sketcher.Constraint("Equal", 43, 45),
    Sketcher.Constraint("Equal", 47, 49),
    Sketcher.Constraint("Equal", 51, 53),
    Sketcher.Constraint("DistanceX", 1, 1, 1, 2, 10.0),
    Sketcher.Constraint("DistanceY", 0, 1, 0, 2, 5.0),
    Sketcher.Constraint("DistanceY", 0, 2, -1, 1, 85.0),
    Sketcher.Constraint("DistanceX", 1, 2, 4, 2, 10.0),
    Sketcher.Constraint("DistanceX", 5, 2, 8, 2, 10.0),
    Sketcher.Constraint("DistanceX", 9, 2, 12, 2, 10.0),
    Sketcher.Constraint("DistanceX", 13, 2, 16, 2, 10.0),
    Sketcher.Constraint("DistanceX", 17, 2, 20, 2, 10.0),
    Sketcher.Constraint("DistanceX", 21, 2, 24, 2, 10.0),
    Sketcher.Constraint("DistanceX", 25, 2, 28, 2, 10.0),
    Sketcher.Constraint("DistanceX", 29, 2, 32, 2, 10.0),
    Sketcher.Constraint("DistanceX", 33, 2, 36, 2, 10.0),
    Sketcher.Constraint("DistanceX", 37, 2, 40, 2, 10.0),
    Sketcher.Constraint("DistanceX", 41, 2, 44, 2, 10.0),
    Sketcher.Constraint("DistanceX", 45, 2, 48, 2, 10.0),
    Sketcher.Constraint("DistanceX", 49, 2, 52, 2, 10.0),
    Sketcher.Constraint("DistanceX", 0, 2, -1, 1, 127.5),
])
pocket2 = doc.addObject("PartDesign::Pocket", "Pocket001")
body.addObject(pocket2)
pocket2.Profile = sketch4
pocket2.Type = "ThroughAll"
pocket2.Reversed = True

# Sketch on XZ plane
sketch5 = doc.addObject("Sketcher::SketchObject", "Sketch004")
body.addObject(sketch5)
sketch5.AttachmentSupport = (doc.XZ_Plane, [""])
sketch5.MapMode = "FlatFace"
sketch5.AttachmentOffset = App.Placement(Vector(0, 0, -2.5), App.Rotation())
sketch5.addGeometry([
    Part.Circle(Vector(-127.5, -20, 0), Vector(0, 0, 1), 2.5),
    Part.Circle(Vector(-2.5, -20, 0), Vector(0, 0, 1), 2.5),
    Part.Circle(Vector(127.5, -70, 0), Vector(0, 0, 1), 2.5),
    Part.Circle(Vector(127.5, 85, 0), Vector(0, 0, 1), 2.5),
], False)
sketch5.addConstraint([
    Sketcher.Constraint("Equal", 0, 1),
    Sketcher.Constraint("Equal", 1, 2),
    Sketcher.Constraint("Equal", 2, 3),
    Sketcher.Constraint("Horizontal", 0, 3, 1, 3),
    Sketcher.Constraint("Vertical", 2, 3, 3, 3),
    Sketcher.Constraint("Diameter", 0, 5.0),
    Sketcher.Constraint("DistanceY", 0, 3, -1, 1, 20.0),
    Sketcher.Constraint("DistanceY", 2, 3, -1, 1, 70.0),
    Sketcher.Constraint("DistanceY", -1, 1, 3, 3, 85.0),
    Sketcher.Constraint("DistanceX", 0, 3, 1, 3, 125.0),
    Sketcher.Constraint("DistanceX", 1, 3, 2, 3, 130.0),
    Sketcher.Constraint("DistanceX", 0, 3, -1, 1, 127.5),
])
pocket3 = doc.addObject("PartDesign::Pocket", "Pocket002")
body.addObject(pocket3)
pocket3.Profile = sketch5
pocket3.Type = "ThroughAll"
pocket3.Reversed = True

# Sketch on XZ plane
sketch6 = doc.addObject("Sketcher::SketchObject", "Sketch005")
body.addObject(sketch6)
sketch6.AttachmentSupport = (doc.XZ_Plane, [""])
sketch6.MapMode = "FlatFace"
sketch6.AttachmentOffset = App.Placement(Vector(0, 0, -2.5), App.Rotation())
sketch6.addGeometry([
    Part.Circle(Vector(-16.5, 20, 0), Vector(0, 0, 1), 19),  # 0
    Part.Circle(Vector(-32.5, 4, 0), Vector(0, 0, 1), 2.5),  # 1
    Part.Circle(Vector(-0.5, 4, 0), Vector(0, 0, 1), 2.5),  # 2
    Part.Circle(Vector(-32.5, 36, 0), Vector(0, 0, 1), 2.5),  # 3
    Part.Circle(Vector(-0.5, 36, 0), Vector(0, 0, 1), 2.5),  # 4
], False)
sketch6.addConstraint([
    Sketcher.Constraint("Equal", 1, 2),
    Sketcher.Constraint("Equal", 2, 3),
    Sketcher.Constraint("Equal", 3, 4),
    Sketcher.Constraint("Horizontal", 1, 3, 2, 3),
    Sketcher.Constraint("Horizontal", 3, 3, 4, 3),
    Sketcher.Constraint("Vertical", 1, 3, 3, 3),
    Sketcher.Constraint("Vertical", 2, 3, 4, 3),
    Sketcher.Constraint("Diameter", 0, 38.0),
    Sketcher.Constraint("Diameter", 1, 5.0),
    Sketcher.Constraint("DistanceY", -1, 1, 0, 3, 20.0),
    Sketcher.Constraint("DistanceY", -1, 1, 1, 3, 4.0),
    Sketcher.Constraint("DistanceY", -1, 1, 3, 3, 36.0),
    Sketcher.Constraint("DistanceX", 1, 3, 0, 3, 16.0),
    Sketcher.Constraint("DistanceX", 0, 3, 2, 3, 16.0),
    Sketcher.Constraint("DistanceX", 0, 3, -1, 1, 16.5),
])
pocket4 = doc.addObject("PartDesign::Pocket", "Pocket003")
body.addObject(pocket4)
pocket4.Profile = sketch6
pocket4.Type = "ThroughAll"
pocket4.Reversed = True

# Sketch on XZ plane
sketch7 = doc.addObject("Sketcher::SketchObject", "Sketch006")
body.addObject(sketch7)
sketch7.AttachmentSupport = (doc.XZ_Plane, [""])
sketch7.MapMode = "FlatFace"
sketch7.AttachmentOffset = App.Placement(Vector(0, 0, -2.5), App.Rotation())
sketch7.addGeometry([
    Part.LineSegment(Vector(64, -70, 0), Vector(64, -60, 0)),  # 0
    Part.LineSegment(Vector(64, -60, 0), Vector(72, -60, 0)),  # 1
    Part.LineSegment(Vector(72, -60, 0), Vector(72, -70, 0)),  # 2
    Part.LineSegment(Vector(72, -70, 0), Vector(64, -70, 0)),  # 3
    Part.LineSegment(Vector(88, -70, 0), Vector(88, -60, 0)),  # 4
    Part.LineSegment(Vector(88, -60, 0), Vector(98, -60, 0)),  # 5
    Part.LineSegment(Vector(98, -60, 0), Vector(98, -70, 0)),  # 6
    Part.LineSegment(Vector(98, -70, 0), Vector(88, -70, 0)),  # 7
], False)
sketch7.addConstraint([
    Sketcher.Constraint("Coincident", 0, 2, 1, 1),
    Sketcher.Constraint("Coincident", 1, 2, 2, 1),
    Sketcher.Constraint("Coincident", 2, 2, 3, 1),
    Sketcher.Constraint("Coincident", 3, 2, 0, 1),
    Sketcher.Constraint("Coincident", 4, 2, 5, 1),
    Sketcher.Constraint("Coincident", 5, 2, 6, 1),
    Sketcher.Constraint("Coincident", 6, 2, 7, 1),
    Sketcher.Constraint("Coincident", 7, 2, 4, 1),
    Sketcher.Constraint("Vertical", 0),
    Sketcher.Constraint("Horizontal", 1),
    Sketcher.Constraint("Vertical", 2),
    Sketcher.Constraint("Horizontal", 3),
    Sketcher.Constraint("Vertical", 4),
    Sketcher.Constraint("Horizontal", 5),
    Sketcher.Constraint("Vertical", 6),
    Sketcher.Constraint("Horizontal", 7),
    Sketcher.Constraint("Horizontal", 1, 2, 4, 2),
    Sketcher.Constraint("Horizontal", 3, 2, 6, 2),
    Sketcher.Constraint("Equal", 3, 5),
    Sketcher.Constraint("DistanceX", 1, 1, 1, 2, 9.0),
    Sketcher.Constraint("DistanceY", 0, 1, 0, 2, 10.0),
    Sketcher.Constraint("DistanceY", 0, 2, -1, 1, 60.0),
    Sketcher.Constraint("DistanceX", 1, 2, 4, 2, 16.0),
    Sketcher.Constraint("DistanceX", -1, 1, 0, 2, 63.5),
])
pocket5 = doc.addObject("PartDesign::Pocket", "Pocket004")
body.addObject(pocket5)
pocket5.Profile = sketch7
pocket5.Type = "ThroughAll"
pocket5.Reversed = True

# Sketch on XZ plane
sketch8 = doc.addObject("Sketcher::SketchObject", "Sketch007")
body.addObject(sketch8)
sketch8.AttachmentSupport = (doc.XZ_Plane, [""])
sketch8.MapMode = "FlatFace"
sketch8.AttachmentOffset = App.Placement(Vector(0, 0, -2.5), App.Rotation())
sketch8.addGeometry([
    Part.Circle(Vector(-112.2, 16.5, 0), Vector(0, 0, 1), 2.5),
    Part.Circle(Vector(-81.2, 16.5, 0), Vector(0, 0, 1), 2.5),
    Part.Circle(Vector(-112.2, 47.5, 0), Vector(0, 0, 1), 2.5),
    Part.Circle(Vector(-81.2, 47.5, 0), Vector(0, 0, 1), 2.5),
], False)
sketch8.addConstraint([
    Sketcher.Constraint("Equal", 0, 1),
    Sketcher.Constraint("Equal", 1, 2),
    Sketcher.Constraint("Equal", 2, 3),
    Sketcher.Constraint("Horizontal", 0, 3, 1, 3),
    Sketcher.Constraint("Horizontal", 2, 3, 3, 3),
    Sketcher.Constraint("Vertical", 0, 3, 2, 3),
    Sketcher.Constraint("Vertical", 1, 3, 3, 3),
    Sketcher.Constraint("Diameter", 0, 5.0),
    Sketcher.Constraint("DistanceX", 0, 3, 1, 3, 31.0),
    Sketcher.Constraint("DistanceY", 0, 3, 2, 3, 31.0),
    Sketcher.Constraint("DistanceY", -1, 1, 0, 3, 16.5),
    Sketcher.Constraint("DistanceX", 0, 3, -1, 1, 112.15),
])
pocket6 = doc.addObject("PartDesign::Pocket", "Pocket005")
body.addObject(pocket6)
pocket6.Profile = sketch8
pocket6.Type = "ThroughAll"
pocket6.Reversed = True

doc.recompute()
